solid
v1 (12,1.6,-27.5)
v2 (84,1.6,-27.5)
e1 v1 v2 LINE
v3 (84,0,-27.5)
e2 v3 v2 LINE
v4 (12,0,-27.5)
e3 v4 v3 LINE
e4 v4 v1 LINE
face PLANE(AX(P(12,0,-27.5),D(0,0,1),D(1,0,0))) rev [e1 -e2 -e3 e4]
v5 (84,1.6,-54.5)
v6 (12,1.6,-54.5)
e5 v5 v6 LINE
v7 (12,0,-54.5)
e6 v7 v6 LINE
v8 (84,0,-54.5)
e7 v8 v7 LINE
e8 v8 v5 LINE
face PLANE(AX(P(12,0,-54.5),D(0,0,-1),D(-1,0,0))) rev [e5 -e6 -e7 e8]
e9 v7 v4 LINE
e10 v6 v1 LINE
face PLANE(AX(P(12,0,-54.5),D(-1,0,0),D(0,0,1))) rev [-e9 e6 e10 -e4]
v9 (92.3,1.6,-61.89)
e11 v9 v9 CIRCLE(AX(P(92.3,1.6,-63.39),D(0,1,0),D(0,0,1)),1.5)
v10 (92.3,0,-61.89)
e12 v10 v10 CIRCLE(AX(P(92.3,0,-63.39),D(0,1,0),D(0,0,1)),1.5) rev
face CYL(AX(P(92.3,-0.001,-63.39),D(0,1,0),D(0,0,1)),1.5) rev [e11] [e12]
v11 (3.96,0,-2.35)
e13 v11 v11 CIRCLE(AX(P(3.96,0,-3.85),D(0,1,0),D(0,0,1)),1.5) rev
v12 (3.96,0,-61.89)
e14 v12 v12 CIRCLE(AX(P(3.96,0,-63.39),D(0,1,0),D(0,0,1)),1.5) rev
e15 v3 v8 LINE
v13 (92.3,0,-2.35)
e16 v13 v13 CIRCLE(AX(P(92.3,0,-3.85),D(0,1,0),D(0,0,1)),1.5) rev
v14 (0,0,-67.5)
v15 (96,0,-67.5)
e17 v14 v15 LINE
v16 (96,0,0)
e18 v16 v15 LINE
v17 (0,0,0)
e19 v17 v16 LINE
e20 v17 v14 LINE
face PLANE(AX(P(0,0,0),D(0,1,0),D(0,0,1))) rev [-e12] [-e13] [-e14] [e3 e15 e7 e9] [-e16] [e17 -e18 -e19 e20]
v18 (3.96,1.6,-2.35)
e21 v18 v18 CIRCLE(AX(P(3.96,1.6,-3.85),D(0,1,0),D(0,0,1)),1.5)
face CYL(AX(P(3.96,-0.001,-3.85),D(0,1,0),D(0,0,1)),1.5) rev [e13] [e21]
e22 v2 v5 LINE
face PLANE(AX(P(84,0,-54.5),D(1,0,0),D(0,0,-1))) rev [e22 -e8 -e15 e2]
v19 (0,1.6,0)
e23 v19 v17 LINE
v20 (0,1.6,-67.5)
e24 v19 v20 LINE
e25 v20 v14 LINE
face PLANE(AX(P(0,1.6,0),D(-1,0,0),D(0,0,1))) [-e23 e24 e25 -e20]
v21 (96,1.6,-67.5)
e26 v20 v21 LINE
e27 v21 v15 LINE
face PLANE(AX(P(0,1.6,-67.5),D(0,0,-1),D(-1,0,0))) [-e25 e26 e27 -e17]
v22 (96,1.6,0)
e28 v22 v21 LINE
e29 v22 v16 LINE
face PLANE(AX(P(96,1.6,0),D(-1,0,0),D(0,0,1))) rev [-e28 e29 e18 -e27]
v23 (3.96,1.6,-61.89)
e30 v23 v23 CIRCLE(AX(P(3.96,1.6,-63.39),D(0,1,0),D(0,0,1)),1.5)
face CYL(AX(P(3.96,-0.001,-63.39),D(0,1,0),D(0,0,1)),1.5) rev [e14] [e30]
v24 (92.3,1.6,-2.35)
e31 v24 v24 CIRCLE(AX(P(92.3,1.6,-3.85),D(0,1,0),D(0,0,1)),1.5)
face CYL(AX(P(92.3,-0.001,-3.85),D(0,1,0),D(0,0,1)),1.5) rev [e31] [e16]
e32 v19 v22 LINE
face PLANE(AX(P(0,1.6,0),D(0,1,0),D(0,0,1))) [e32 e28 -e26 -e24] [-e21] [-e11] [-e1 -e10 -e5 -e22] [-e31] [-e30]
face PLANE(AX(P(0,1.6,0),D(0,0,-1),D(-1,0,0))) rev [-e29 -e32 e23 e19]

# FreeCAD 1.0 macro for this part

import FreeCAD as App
import Part
import Sketcher
Q = App.Units.Quantity

doc = App.newDocument("Part")
body = doc.addObject("PartDesign::Body", "Body")

sketch1 = body.newObject("Sketcher::SketchObject", "Sketch")
sketch1.AttachmentSupport = (doc.getObject("XZ_Plane"), [""])
sketch1.MapMode = "FlatFace"
sketch1.addGeometry(Part.LineSegment(App.Vector(0, -68, 0), App.Vector(0, 0, 0)), False)
sketch1.addGeometry(Part.LineSegment(App.Vector(0, 0, 0), App.Vector(96, 0, 0)), False)
sketch1.addGeometry(Part.LineSegment(App.Vector(96, 0, 0), App.Vector(96, -68, 0)), False)
sketch1.addGeometry(Part.LineSegment(App.Vector(96, -68, 0), App.Vector(0, -68, 0)), False)
sketch1.addConstraint(Sketcher.Constraint("Coincident", 0, 2, 1, 1))
sketch1.addConstraint(Sketcher.Constraint("Coincident", 1, 2, 2, 1))
sketch1.addConstraint(Sketcher.Constraint("Coincident", 2, 2, 3, 1))
sketch1.addConstraint(Sketcher.Constraint("Coincident", 3, 2, 0, 1))
sketch1.addConstraint(Sketcher.Constraint("Vertical", 0))
sketch1.addConstraint(Sketcher.Constraint("Horizontal", 1))
sketch1.addConstraint(Sketcher.Constraint("Vertical", 2))
sketch1.addConstraint(Sketcher.Constraint("Horizontal", 3))
sketch1.addConstraint(Sketcher.Constraint("Coincident", 0, 2, -1, 1))
sketch1.addConstraint(Sketcher.Constraint("DistanceX", 1, 1, 1, 2, Q("96 mm")))
sketch1.addConstraint(Sketcher.Constraint("DistanceY", 0, 1, 0, 2, Q("67.5 mm")))
pad1 = body.newObject("PartDesign::Pad", "Pad")
pad1.Profile = sketch1
pad1.Length = 1.6
pad1.Reversed = True

sketch2 = body.newObject("Sketcher::SketchObject", "Sketch001")
sketch2.AttachmentSupport = (doc.getObject("XZ_Plane"), [""])
sketch2.MapMode = "FlatFace"
sketch2.AttachmentOffset = App.Placement(App.Vector(0, 0, -1.6), App.Rotation())
sketch2.addGeometry(Part.Circle(App.Vector(4, -3.9, 0), App.Vector(0, 0, 1), 1.5), False)
sketch2.addConstraint(Sketcher.Constraint("Diameter", 0, Q("3 mm")))
sketch2.addConstraint(Sketcher.Constraint("DistanceX", -1, 1, 0, 3, Q("3.96 mm")))
sketch2.addConstraint(Sketcher.Constraint("DistanceY", 0, 3, -1, 1, Q("3.85 mm")))
pocket1 = body.newObject("PartDesign::Pocket", "Pocket")
pocket1.Profile = sketch2
pocket1.Type = "UpToFirst"
pocket1.Reversed = True

sketch3 = body.newObject("Sketcher::SketchObject", "Sketch002")
sketch3.AttachmentSupport = (doc.getObject("XZ_Plane"), [""])
sketch3.MapMode = "FlatFace"
sketch3.AttachmentOffset = App.Placement(App.Vector(0, 0, -1.6), App.Rotation())
sketch3.addGeometry(Part.Circle(App.Vector(92.3, -3.9, 0), App.Vector(0, 0, 1), 1.5), False)
sketch3.addConstraint(Sketcher.Constraint("Diameter", 0, Q("3 mm")))
sketch3.addConstraint(Sketcher.Constraint("DistanceX", -1, 1, 0, 3, Q("92.3 mm")))
sketch3.addConstraint(Sketcher.Constraint("DistanceY", 0, 3, -1, 1, Q("3.85 mm")))
pocket2 = body.newObject("PartDesign::Pocket", "Pocket001")
pocket2.Profile = sketch3
pocket2.Type = "UpToFirst"
pocket2.Reversed = True

sketch4 = body.newObject("Sketcher::SketchObject", "Sketch003")
sketch4.AttachmentSupport = (doc.getObject("XZ_Plane"), [""])
sketch4.MapMode = "FlatFace"
sketch4.AttachmentOffset = App.Placement(App.Vector(0, 0, -1.6), App.Rotation())
sketch4.addGeometry(Part.Circle(App.Vector(4, -63.4, 0), App.Vector(0, 0, 1), 1.5), False)
sketch4.addConstraint(Sketcher.Constraint("Diameter", 0, Q("3 mm")))
sketch4.addConstraint(Sketcher.Constraint("DistanceX", -1, 1, 0, 3, Q("3.96 mm")))
sketch4.addConstraint(Sketcher.Constraint("DistanceY", 0, 3, -1, 1, Q("63.39 mm")))
pocket3 = body.newObject("PartDesign::Pocket", "Pocket002")
pocket3.Profile = sketch4
pocket3.Type = "UpToFirst"
pocket3.Reversed = True

sketch5 = body.newObject("Sketcher::SketchObject", "Sketch004")
sketch5.AttachmentSupport = (doc.getObject("XZ_Plane"), [""])
sketch5.MapMode = "FlatFace"
sketch5.AttachmentOffset = App.Placement(App.Vector(0, 0, -1.6), App.Rotation())
sketch5.addGeometry(Part.Circle(App.Vector(92.3, -63.4, 0), App.Vector(0, 0, 1), 1.5), False)
sketch5.addConstraint(Sketcher.Constraint("Diameter", 0, Q("3 mm")))
sketch5.addConstraint(Sketcher.Constraint("DistanceX", -1, 1, 0, 3, Q("92.3 mm")))
sketch5.addConstraint(Sketcher.Constraint("DistanceY", 0, 3, -1, 1, Q("63.39 mm")))
pocket4 = body.newObject("PartDesign::Pocket", "Pocket003")
pocket4.Profile = sketch5
pocket4.Type = "UpToFirst"
pocket4.Reversed = True

sketch6 = body.newObject("Sketcher::SketchObject", "Sketch005")
sketch6.AttachmentSupport = (doc.getObject("XZ_Plane"), [""])
sketch6.MapMode = "FlatFace"
sketch6.AttachmentOffset = App.Placement(App.Vector(0, 0, -1.6), App.Rotation())
sketch6.addGeometry(Part.LineSegment(App.Vector(12, -54, 0), App.Vector(12, -28, 0)), False)
sketch6.addGeometry(Part.LineSegment(App.Vector(12, -28, 0), App.Vector(84, -28, 0)), False)
sketch6.addGeometry(Part.LineSegment(App.Vector(84, -28, 0), App.Vector(84, -54, 0)), False)
sketch6.addGeometry(Part.LineSegment(App.Vector(84, -54, 0), App.Vector(12, -54, 0)), False)
sketch6.addConstraint(Sketcher.Constraint("Coincident", 0, 2, 1, 1))
sketch6.addConstraint(Sketcher.Constraint("Coincident", 1, 2, 2, 1))
sketch6.addConstraint(Sketcher.Constraint("Coincident", 2, 2, 3, 1))
sketch6.addConstraint(Sketcher.Constraint("Coincident", 3, 2, 0, 1))
sketch6.addConstraint(Sketcher.Constraint("Vertical", 0))
sketch6.addConstraint(Sketcher.Constraint("Horizontal", 1))
sketch6.addConstraint(Sketcher.Constraint("Vertical", 2))
sketch6.addConstraint(Sketcher.Constraint("Horizontal", 3))
sketch6.addConstraint(Sketcher.Constraint("DistanceX", 1, 1, 1, 2, Q("72 mm")))
sketch6.addConstraint(Sketcher.Constraint("DistanceY", 0, 1, 0, 2, Q("27 mm")))
sketch6.addConstraint(Sketcher.Constraint("DistanceX", -1, 1, 0, 2, Q("12 mm")))
sketch6.addConstraint(Sketcher.Constraint("DistanceY", 0, 2, -1, 1, Q("27.5 mm")))
pocket5 = body.newObject("PartDesign::Pocket", "Pocket004")
pocket5.Profile = sketch6
pocket5.Type = "ThroughAll"
pocket5.Midplane = True

doc.recompute()
